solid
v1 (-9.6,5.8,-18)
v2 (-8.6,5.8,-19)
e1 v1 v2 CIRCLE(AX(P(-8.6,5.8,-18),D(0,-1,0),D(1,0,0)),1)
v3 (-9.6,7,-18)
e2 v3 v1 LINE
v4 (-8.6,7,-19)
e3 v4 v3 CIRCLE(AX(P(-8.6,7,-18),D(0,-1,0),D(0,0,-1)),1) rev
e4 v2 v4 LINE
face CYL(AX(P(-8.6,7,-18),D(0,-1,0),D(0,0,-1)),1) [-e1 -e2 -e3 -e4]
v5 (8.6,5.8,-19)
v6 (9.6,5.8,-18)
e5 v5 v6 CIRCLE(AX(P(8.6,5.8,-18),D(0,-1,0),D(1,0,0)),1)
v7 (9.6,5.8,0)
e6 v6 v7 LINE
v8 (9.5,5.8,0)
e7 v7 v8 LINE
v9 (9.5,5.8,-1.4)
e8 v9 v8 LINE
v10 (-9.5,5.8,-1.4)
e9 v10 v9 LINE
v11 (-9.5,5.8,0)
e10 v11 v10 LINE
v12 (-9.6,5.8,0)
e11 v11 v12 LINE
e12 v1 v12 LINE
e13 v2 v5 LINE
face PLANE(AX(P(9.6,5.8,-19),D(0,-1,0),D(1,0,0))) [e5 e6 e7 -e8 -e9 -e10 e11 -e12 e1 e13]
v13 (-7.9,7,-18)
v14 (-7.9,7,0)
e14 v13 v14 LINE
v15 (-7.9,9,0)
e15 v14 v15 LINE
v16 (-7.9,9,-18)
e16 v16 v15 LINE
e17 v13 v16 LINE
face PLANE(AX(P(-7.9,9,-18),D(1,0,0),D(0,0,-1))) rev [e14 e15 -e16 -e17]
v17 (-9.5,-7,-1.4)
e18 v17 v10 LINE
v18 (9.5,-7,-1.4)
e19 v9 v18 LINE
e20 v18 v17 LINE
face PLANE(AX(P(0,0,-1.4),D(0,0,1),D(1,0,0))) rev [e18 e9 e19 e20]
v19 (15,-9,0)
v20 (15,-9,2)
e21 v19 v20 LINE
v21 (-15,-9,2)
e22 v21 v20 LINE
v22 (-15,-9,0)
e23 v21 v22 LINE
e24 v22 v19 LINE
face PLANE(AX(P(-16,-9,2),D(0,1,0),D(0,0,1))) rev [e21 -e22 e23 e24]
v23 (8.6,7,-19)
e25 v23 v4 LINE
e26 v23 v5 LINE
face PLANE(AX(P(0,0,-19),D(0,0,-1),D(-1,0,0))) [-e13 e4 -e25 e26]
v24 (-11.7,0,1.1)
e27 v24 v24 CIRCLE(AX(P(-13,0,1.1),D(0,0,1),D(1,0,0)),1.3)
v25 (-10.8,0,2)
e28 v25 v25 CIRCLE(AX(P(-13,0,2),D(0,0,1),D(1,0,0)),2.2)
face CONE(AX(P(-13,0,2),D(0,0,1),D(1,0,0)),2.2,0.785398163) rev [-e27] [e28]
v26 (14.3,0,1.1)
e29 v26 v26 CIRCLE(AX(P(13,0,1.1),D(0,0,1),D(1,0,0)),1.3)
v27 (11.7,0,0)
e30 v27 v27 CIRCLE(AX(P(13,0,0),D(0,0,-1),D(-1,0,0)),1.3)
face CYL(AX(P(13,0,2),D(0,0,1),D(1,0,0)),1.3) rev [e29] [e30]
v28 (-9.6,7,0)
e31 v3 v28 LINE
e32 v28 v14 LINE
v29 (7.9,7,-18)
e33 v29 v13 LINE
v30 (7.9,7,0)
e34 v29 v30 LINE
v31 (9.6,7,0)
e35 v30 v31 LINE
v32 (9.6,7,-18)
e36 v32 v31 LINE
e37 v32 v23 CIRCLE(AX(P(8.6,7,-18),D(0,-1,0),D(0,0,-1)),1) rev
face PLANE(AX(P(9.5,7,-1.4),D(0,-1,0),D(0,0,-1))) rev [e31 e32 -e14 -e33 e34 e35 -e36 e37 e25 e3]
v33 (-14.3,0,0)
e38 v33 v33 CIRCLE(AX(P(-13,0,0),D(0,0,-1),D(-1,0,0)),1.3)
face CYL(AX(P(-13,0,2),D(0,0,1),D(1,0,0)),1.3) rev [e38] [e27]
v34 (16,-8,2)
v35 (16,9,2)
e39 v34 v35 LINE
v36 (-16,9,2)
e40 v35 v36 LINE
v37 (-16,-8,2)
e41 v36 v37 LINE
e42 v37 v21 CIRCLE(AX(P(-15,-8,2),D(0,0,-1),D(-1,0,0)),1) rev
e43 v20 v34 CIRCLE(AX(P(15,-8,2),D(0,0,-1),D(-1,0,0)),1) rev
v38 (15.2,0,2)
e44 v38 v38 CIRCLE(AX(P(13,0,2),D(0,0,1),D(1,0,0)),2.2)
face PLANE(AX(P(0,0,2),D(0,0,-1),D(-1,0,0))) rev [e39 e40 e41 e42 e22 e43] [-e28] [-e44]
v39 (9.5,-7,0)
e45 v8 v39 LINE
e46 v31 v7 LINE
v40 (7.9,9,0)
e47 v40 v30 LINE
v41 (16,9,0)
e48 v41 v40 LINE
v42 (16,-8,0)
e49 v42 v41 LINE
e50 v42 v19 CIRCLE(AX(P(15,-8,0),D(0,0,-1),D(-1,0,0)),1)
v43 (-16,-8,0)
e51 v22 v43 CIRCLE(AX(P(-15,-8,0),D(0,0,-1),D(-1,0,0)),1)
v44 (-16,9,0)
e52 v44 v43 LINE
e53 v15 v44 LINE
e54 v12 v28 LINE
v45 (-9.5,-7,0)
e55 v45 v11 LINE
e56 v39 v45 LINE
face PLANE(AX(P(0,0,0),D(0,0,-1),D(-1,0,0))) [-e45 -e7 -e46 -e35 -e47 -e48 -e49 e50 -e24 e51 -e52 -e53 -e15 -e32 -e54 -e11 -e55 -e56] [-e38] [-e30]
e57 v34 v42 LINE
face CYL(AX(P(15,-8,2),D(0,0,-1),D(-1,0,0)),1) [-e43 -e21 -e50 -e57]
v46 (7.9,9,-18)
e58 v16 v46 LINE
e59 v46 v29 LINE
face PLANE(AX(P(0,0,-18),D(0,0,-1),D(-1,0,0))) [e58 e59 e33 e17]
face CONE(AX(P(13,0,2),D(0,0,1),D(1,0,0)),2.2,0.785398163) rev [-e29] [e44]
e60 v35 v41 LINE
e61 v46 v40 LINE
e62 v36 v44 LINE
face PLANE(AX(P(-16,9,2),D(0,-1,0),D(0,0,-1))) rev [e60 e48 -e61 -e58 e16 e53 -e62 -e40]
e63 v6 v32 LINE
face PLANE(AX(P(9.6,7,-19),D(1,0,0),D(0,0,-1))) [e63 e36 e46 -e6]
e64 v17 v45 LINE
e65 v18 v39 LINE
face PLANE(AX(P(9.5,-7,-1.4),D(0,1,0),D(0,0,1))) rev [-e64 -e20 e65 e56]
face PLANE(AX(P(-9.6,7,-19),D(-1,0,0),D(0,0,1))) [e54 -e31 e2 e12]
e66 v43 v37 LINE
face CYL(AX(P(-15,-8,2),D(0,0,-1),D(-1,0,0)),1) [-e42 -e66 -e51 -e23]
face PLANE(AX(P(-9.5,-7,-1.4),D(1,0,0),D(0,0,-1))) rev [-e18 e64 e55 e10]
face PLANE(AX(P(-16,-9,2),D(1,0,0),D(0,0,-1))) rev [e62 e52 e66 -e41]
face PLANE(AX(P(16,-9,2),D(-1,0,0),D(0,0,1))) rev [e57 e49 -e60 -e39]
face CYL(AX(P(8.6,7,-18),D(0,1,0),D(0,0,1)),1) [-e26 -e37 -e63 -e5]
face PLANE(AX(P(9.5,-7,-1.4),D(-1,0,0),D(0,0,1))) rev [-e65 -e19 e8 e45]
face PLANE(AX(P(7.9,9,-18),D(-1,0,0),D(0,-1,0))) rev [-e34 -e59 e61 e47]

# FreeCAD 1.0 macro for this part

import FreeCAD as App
import Part
import Sketcher
from FreeCAD import Vector
Q = App.Units.Quantity


def edges_at(feature, points):
    """Names of the edges that pass closest to the given points."""
    edges = feature.Shape.Edges
    near = lambda p: min(range(len(edges)), key=lambda i: edges[i].distToShape(Part.Vertex(*p))[0])
    return sorted({f"Edge{near(p) + 1}" for p in points})

doc = App.newDocument("Part")
body = doc.addObject("PartDesign::Body", "Body")

sketch1 = doc.addObject("Sketcher::SketchObject", "Sketch")
body.addObject(sketch1)
sketch1.AttachmentSupport = (doc.XY_Plane, [""])
sketch1.MapMode = "FlatFace"
sketch1.addGeometry([
    Part.LineSegment(Vector(-16, 9, 0), Vector(-16, -9, 0)),
    Part.LineSegment(Vector(-16, -9, 0), Vector(16, -9, 0)),
    Part.LineSegment(Vector(16, -9, 0), Vector(16, 9, 0)),
    Part.LineSegment(Vector(16, 9, 0), Vector(-16, 9, 0)),
], False)
sketch1.addConstraint([
    Sketcher.Constraint("Coincident", 0, 2, 1, 1),
    Sketcher.Constraint("Coincident", 1, 2, 2, 1),
    Sketcher.Constraint("Coincident", 2, 2, 3, 1),
    Sketcher.Constraint("Coincident", 3, 2, 0, 1),
    Sketcher.Constraint("Vertical", 0),
    Sketcher.Constraint("Horizontal", 1),
    Sketcher.Constraint("Vertical", 2),
    Sketcher.Constraint("Horizontal", 3),
    Sketcher.Constraint("Symmetric", 0, 2, 2, 2, -1, 1),
    Sketcher.Constraint("DistanceX", 1, 1, 1, 2, Q("32 mm")),
    Sketcher.Constraint("DistanceY", 0, 2, 0, 1, Q("18 mm")),
])
pad1 = doc.addObject("PartDesign::Pad", "Pad")
body.addObject(pad1)
pad1.Profile = sketch1
pad1.Length = 2

sketch2 = doc.addObject("Sketcher::SketchObject", "Sketch001")
body.addObject(sketch2)
sketch2.AttachmentSupport = (doc.XY_Plane, [""])
sketch2.MapMode = "FlatFace"
sketch2.addGeometry([
    Part.LineSegment(Vector(10, 7, 0), Vector(10, -7, 0)),
    Part.LineSegment(Vector(10, -7, 0), Vector(-10, -7, 0)),
    Part.LineSegment(Vector(-10, -7, 0), Vector(-10, 7, 0)),
    Part.LineSegment(Vector(-10, 7, 0), Vector(10, 7, 0)),
], False)
sketch2.addConstraint([
    Sketcher.Constraint("Coincident", 0, 2, 1, 1),
    Sketcher.Constraint("Coincident", 1, 2, 2, 1),
    Sketcher.Constraint("Coincident", 2, 2, 3, 1),
    Sketcher.Constraint("Coincident", 3, 2, 0, 1),
    Sketcher.Constraint("Vertical", 0),
    Sketcher.Constraint("Horizontal", 1),
    Sketcher.Constraint("Vertical", 2),
    Sketcher.Constraint("Horizontal", 3),
    Sketcher.Constraint("Symmetric", 0, 2, 2, 2, -1, 1),
    Sketcher.Constraint("DistanceX", 1, 2, 1, 1, Q("19 mm")),
    Sketcher.Constraint("DistanceY", 0, 2, 0, 1, Q("14 mm")),
])
pad2 = doc.addObject("PartDesign::Pad", "Pad001")
body.addObject(pad2)
pad2.Profile = sketch2
pad2.Length = 1.4
pad2.Reversed = True

sketch3 = doc.addObject("Sketcher::SketchObject", "Sketch002")
body.addObject(sketch3)
sketch3.AttachmentSupport = (doc.XY_Plane, [""])
sketch3.MapMode = "FlatFace"
sketch3.AttachmentOffset = App.Placement(Vector(0, 0, 2), App.Rotation())
sketch3.addGeometry(Part.Circle(Vector(-13, 0, 0), Vector(0, 0, 1), 1.3), False)
sketch3.addConstraint([
    Sketcher.Constraint("PointOnObject", 0, 3, -1),
    Sketcher.Constraint("Diameter", 0, Q("2.6 mm")),
    Sketcher.Constraint("DistanceX", 0, 3, -1, 1, Q("13 mm")),
])
doc.recompute()
hole = doc.addObject("PartDesign::Hole", "Hole")
body.addObject(hole)
hole.Profile = sketch3
hole.ThreadType = "None"
hole.Diameter = 2.6
hole.DepthType = "ThroughAll"
hole.HoleCutType = "Countersink"
hole.HoleCutDiameter = 4.4
hole.HoleCutCountersinkAngle = 90
doc.recompute()

mirrored = doc.addObject("PartDesign::Mirrored", "Mirrored")
body.addObject(mirrored)
mirrored.Originals = [hole]
mirrored.MirrorPlane = (doc.YZ_Plane, [""])
body.Tip = mirrored

sketch4 = doc.addObject("Sketcher::SketchObject", "Sketch003")
body.addObject(sketch4)
sketch4.AttachmentSupport = (doc.XY_Plane, [""])
sketch4.MapMode = "FlatFace"
sketch4.addGeometry([
    Part.LineSegment(Vector(7.9, 9, 0), Vector(7.9, 7, 0)),
    Part.LineSegment(Vector(7.9, 7, 0), Vector(-7.9, 7, 0)),
    Part.LineSegment(Vector(-7.9, 7, 0), Vector(-7.9, 9, 0)),
    Part.LineSegment(Vector(-7.9, 9, 0), Vector(7.9, 9, 0)),
], False)
sketch4.addConstraint([
    Sketcher.Constraint("Coincident", 0, 2, 1, 1),
    Sketcher.Constraint("Coincident", 1, 2, 2, 1),
    Sketcher.Constraint("Coincident", 2, 2, 3, 1),
    Sketcher.Constraint("Coincident", 3, 2, 0, 1),
    Sketcher.Constraint("Vertical", 0),
    Sketcher.Constraint("Horizontal", 1),
    Sketcher.Constraint("Vertical", 2),
    Sketcher.Constraint("Horizontal", 3),
    Sketcher.Constraint("DistanceY", 0, 2, 0, 1, Q("2 mm")),
    Sketcher.Constraint("DistanceX", 1, 2, 1, 1, Q("15.8 mm")),
    Sketcher.Constraint("DistanceY", -1, 1, 0, 2, Q("7 mm")),
    Sketcher.Constraint("DistanceX", -1, 1, 0, 2, Q("7.9 mm")),
])
pad3 = doc.addObject("PartDesign::Pad", "Pad002")
body.addObject(pad3)
pad3.Profile = sketch4
pad3.Length = 18
pad3.Reversed = True

sketch5 = doc.addObject("Sketcher::SketchObject", "Sketch004")
body.addObject(sketch5)
sketch5.AttachmentSupport = (doc.XY_Plane, [""])
sketch5.MapMode = "FlatFace"
sketch5.AttachmentOffset = App.Placement(Vector(0, 0, 2), App.Rotation())
sketch5.addGeometry([
    Part.LineSegment(Vector(-9.6, 7, 0), Vector(-9.6, 5.8, 0)),
    Part.LineSegment(Vector(-9.6, 5.8, 0), Vector(9.6, 5.8, 0)),
    Part.LineSegment(Vector(9.6, 5.8, 0), Vector(9.6, 7, 0)),
    Part.LineSegment(Vector(9.6, 7, 0), Vector(-9.6, 7, 0)),
], False)
sketch5.addConstraint([
    Sketcher.Constraint("Coincident", 0, 2, 1, 1),
    Sketcher.Constraint("Coincident", 1, 2, 2, 1),
    Sketcher.Constraint("Coincident", 2, 2, 3, 1),
    Sketcher.Constraint("Coincident", 3, 2, 0, 1),
    Sketcher.Constraint("Vertical", 0),
    Sketcher.Constraint("Horizontal", 1),
    Sketcher.Constraint("Vertical", 2),
    Sketcher.Constraint("Horizontal", 3),
    Sketcher.Constraint("DistanceX", 1, 1, 1, 2, Q("19.2 mm")),
    Sketcher.Constraint("DistanceY", 0, 2, 0, 1, Q("1.2 mm")),
    Sketcher.Constraint("DistanceY", -1, 1, 2, 2, Q("7 mm")),
    Sketcher.Constraint("DistanceX", 0, 2, -1, 1, Q("9.6 mm")),
])
pad4 = doc.addObject("PartDesign::Pad", "Pad003")
body.addObject(pad4)
pad4.Profile = sketch5
pad4.Length = 21
pad4.Reversed = True
doc.recompute()

fillet = doc.addObject("PartDesign::Fillet", "Fillet")
body.addObject(fillet)
fillet.Base = (pad4, edges_at(pad4, [
    (9.6, 6.4, -19),
    (-9.6, 6.4, -19),
    (16, -9, 1),
    (-16, -9, 1),
]))
fillet.Radius = 1

doc.recompute()
